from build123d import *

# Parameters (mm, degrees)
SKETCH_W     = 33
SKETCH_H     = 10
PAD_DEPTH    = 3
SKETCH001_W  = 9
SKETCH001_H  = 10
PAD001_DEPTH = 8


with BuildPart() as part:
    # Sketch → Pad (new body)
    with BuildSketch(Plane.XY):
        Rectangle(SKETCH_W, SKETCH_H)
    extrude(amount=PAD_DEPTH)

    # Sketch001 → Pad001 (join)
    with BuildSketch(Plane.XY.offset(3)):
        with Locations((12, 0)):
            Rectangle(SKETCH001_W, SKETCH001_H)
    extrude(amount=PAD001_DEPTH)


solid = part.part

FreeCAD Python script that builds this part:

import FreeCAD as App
import Part
import Sketcher
from FreeCAD import Vector
Q = App.Units.Quantity

doc = App.newDocument("Part")
body = doc.addObject("PartDesign::Body", "Body")

# Sketch on XY plane
sketch1 = body.newObject("Sketcher::SketchObject", "Sketch")
sketch1.AttachmentSupport = (doc.getObject("XY_Plane"), [""])
sketch1.MapMode = "FlatFace"
sketch1.addGeometry([
    Part.LineSegment(Vector(-16, 5, 0), Vector(-16, -5, 0)),
    Part.LineSegment(Vector(-16, -5, 0), Vector(16, -5, 0)),
    Part.LineSegment(Vector(16, -5, 0), Vector(16, 5, 0)),
    Part.LineSegment(Vector(16, 5, 0), Vector(-16, 5, 0)),
], False)
sketch1.addConstraint([
    Sketcher.Constraint("Coincident", 0, 2, 1, 1),
    Sketcher.Constraint("Coincident", 1, 2, 2, 1),
    Sketcher.Constraint("Coincident", 2, 2, 3, 1),
    Sketcher.Constraint("Coincident", 3, 2, 0, 1),
    Sketcher.Constraint("Vertical", 0),
    Sketcher.Constraint("Horizontal", 1),
    Sketcher.Constraint("Vertical", 2),
    Sketcher.Constraint("Horizontal", 3),
    Sketcher.Constraint("Symmetric", 0, 2, 2, 2, -1, 1),
    Sketcher.Constraint("DistanceX", 1, 1, 1, 2, Q("33 mm")),
    Sketcher.Constraint("DistanceY", 0, 2, 0, 1, Q("10 mm")),
])
pad1 = body.newObject("PartDesign::Pad", "Pad")
pad1.Profile = sketch1
pad1.Length = 3

# Sketch on XY plane
sketch2 = body.newObject("Sketcher::SketchObject", "Sketch001")
sketch2.AttachmentSupport = (doc.getObject("XY_Plane"), [""])
sketch2.MapMode = "FlatFace"
sketch2.AttachmentOffset = App.Placement(Vector(0, 0, 3), App.Rotation())
sketch2.addGeometry([
    Part.LineSegment(Vector(8, 5, 0), Vector(8, -5, 0)),
    Part.LineSegment(Vector(8, -5, 0), Vector(16, -5, 0)),
    Part.LineSegment(Vector(16, -5, 0), Vector(16, 5, 0)),
    Part.LineSegment(Vector(16, 5, 0), Vector(8, 5, 0)),
], False)
sketch2.addConstraint([
    Sketcher.Constraint("Coincident", 0, 2, 1, 1),
    Sketcher.Constraint("Coincident", 1, 2, 2, 1),
    Sketcher.Constraint("Coincident", 2, 2, 3, 1),
    Sketcher.Constraint("Coincident", 3, 2, 0, 1),
    Sketcher.Constraint("Vertical", 0),
    Sketcher.Constraint("Horizontal", 1),
    Sketcher.Constraint("Vertical", 2),
    Sketcher.Constraint("Horizontal", 3),
    Sketcher.Constraint("DistanceX", 1, 1, 1, 2, Q("9 mm")),
    Sketcher.Constraint("DistanceY", 0, 2, 0, 1, Q("10 mm")),
    Sketcher.Constraint("DistanceY", 0, 2, -1, 1, Q("5 mm")),
    Sketcher.Constraint("DistanceX", -1, 1, 0, 2, Q("7.5 mm")),
])
pad2 = body.newObject("PartDesign::Pad", "Pad001")
pad2.Profile = sketch2
pad2.Length = 8

doc.recompute()
